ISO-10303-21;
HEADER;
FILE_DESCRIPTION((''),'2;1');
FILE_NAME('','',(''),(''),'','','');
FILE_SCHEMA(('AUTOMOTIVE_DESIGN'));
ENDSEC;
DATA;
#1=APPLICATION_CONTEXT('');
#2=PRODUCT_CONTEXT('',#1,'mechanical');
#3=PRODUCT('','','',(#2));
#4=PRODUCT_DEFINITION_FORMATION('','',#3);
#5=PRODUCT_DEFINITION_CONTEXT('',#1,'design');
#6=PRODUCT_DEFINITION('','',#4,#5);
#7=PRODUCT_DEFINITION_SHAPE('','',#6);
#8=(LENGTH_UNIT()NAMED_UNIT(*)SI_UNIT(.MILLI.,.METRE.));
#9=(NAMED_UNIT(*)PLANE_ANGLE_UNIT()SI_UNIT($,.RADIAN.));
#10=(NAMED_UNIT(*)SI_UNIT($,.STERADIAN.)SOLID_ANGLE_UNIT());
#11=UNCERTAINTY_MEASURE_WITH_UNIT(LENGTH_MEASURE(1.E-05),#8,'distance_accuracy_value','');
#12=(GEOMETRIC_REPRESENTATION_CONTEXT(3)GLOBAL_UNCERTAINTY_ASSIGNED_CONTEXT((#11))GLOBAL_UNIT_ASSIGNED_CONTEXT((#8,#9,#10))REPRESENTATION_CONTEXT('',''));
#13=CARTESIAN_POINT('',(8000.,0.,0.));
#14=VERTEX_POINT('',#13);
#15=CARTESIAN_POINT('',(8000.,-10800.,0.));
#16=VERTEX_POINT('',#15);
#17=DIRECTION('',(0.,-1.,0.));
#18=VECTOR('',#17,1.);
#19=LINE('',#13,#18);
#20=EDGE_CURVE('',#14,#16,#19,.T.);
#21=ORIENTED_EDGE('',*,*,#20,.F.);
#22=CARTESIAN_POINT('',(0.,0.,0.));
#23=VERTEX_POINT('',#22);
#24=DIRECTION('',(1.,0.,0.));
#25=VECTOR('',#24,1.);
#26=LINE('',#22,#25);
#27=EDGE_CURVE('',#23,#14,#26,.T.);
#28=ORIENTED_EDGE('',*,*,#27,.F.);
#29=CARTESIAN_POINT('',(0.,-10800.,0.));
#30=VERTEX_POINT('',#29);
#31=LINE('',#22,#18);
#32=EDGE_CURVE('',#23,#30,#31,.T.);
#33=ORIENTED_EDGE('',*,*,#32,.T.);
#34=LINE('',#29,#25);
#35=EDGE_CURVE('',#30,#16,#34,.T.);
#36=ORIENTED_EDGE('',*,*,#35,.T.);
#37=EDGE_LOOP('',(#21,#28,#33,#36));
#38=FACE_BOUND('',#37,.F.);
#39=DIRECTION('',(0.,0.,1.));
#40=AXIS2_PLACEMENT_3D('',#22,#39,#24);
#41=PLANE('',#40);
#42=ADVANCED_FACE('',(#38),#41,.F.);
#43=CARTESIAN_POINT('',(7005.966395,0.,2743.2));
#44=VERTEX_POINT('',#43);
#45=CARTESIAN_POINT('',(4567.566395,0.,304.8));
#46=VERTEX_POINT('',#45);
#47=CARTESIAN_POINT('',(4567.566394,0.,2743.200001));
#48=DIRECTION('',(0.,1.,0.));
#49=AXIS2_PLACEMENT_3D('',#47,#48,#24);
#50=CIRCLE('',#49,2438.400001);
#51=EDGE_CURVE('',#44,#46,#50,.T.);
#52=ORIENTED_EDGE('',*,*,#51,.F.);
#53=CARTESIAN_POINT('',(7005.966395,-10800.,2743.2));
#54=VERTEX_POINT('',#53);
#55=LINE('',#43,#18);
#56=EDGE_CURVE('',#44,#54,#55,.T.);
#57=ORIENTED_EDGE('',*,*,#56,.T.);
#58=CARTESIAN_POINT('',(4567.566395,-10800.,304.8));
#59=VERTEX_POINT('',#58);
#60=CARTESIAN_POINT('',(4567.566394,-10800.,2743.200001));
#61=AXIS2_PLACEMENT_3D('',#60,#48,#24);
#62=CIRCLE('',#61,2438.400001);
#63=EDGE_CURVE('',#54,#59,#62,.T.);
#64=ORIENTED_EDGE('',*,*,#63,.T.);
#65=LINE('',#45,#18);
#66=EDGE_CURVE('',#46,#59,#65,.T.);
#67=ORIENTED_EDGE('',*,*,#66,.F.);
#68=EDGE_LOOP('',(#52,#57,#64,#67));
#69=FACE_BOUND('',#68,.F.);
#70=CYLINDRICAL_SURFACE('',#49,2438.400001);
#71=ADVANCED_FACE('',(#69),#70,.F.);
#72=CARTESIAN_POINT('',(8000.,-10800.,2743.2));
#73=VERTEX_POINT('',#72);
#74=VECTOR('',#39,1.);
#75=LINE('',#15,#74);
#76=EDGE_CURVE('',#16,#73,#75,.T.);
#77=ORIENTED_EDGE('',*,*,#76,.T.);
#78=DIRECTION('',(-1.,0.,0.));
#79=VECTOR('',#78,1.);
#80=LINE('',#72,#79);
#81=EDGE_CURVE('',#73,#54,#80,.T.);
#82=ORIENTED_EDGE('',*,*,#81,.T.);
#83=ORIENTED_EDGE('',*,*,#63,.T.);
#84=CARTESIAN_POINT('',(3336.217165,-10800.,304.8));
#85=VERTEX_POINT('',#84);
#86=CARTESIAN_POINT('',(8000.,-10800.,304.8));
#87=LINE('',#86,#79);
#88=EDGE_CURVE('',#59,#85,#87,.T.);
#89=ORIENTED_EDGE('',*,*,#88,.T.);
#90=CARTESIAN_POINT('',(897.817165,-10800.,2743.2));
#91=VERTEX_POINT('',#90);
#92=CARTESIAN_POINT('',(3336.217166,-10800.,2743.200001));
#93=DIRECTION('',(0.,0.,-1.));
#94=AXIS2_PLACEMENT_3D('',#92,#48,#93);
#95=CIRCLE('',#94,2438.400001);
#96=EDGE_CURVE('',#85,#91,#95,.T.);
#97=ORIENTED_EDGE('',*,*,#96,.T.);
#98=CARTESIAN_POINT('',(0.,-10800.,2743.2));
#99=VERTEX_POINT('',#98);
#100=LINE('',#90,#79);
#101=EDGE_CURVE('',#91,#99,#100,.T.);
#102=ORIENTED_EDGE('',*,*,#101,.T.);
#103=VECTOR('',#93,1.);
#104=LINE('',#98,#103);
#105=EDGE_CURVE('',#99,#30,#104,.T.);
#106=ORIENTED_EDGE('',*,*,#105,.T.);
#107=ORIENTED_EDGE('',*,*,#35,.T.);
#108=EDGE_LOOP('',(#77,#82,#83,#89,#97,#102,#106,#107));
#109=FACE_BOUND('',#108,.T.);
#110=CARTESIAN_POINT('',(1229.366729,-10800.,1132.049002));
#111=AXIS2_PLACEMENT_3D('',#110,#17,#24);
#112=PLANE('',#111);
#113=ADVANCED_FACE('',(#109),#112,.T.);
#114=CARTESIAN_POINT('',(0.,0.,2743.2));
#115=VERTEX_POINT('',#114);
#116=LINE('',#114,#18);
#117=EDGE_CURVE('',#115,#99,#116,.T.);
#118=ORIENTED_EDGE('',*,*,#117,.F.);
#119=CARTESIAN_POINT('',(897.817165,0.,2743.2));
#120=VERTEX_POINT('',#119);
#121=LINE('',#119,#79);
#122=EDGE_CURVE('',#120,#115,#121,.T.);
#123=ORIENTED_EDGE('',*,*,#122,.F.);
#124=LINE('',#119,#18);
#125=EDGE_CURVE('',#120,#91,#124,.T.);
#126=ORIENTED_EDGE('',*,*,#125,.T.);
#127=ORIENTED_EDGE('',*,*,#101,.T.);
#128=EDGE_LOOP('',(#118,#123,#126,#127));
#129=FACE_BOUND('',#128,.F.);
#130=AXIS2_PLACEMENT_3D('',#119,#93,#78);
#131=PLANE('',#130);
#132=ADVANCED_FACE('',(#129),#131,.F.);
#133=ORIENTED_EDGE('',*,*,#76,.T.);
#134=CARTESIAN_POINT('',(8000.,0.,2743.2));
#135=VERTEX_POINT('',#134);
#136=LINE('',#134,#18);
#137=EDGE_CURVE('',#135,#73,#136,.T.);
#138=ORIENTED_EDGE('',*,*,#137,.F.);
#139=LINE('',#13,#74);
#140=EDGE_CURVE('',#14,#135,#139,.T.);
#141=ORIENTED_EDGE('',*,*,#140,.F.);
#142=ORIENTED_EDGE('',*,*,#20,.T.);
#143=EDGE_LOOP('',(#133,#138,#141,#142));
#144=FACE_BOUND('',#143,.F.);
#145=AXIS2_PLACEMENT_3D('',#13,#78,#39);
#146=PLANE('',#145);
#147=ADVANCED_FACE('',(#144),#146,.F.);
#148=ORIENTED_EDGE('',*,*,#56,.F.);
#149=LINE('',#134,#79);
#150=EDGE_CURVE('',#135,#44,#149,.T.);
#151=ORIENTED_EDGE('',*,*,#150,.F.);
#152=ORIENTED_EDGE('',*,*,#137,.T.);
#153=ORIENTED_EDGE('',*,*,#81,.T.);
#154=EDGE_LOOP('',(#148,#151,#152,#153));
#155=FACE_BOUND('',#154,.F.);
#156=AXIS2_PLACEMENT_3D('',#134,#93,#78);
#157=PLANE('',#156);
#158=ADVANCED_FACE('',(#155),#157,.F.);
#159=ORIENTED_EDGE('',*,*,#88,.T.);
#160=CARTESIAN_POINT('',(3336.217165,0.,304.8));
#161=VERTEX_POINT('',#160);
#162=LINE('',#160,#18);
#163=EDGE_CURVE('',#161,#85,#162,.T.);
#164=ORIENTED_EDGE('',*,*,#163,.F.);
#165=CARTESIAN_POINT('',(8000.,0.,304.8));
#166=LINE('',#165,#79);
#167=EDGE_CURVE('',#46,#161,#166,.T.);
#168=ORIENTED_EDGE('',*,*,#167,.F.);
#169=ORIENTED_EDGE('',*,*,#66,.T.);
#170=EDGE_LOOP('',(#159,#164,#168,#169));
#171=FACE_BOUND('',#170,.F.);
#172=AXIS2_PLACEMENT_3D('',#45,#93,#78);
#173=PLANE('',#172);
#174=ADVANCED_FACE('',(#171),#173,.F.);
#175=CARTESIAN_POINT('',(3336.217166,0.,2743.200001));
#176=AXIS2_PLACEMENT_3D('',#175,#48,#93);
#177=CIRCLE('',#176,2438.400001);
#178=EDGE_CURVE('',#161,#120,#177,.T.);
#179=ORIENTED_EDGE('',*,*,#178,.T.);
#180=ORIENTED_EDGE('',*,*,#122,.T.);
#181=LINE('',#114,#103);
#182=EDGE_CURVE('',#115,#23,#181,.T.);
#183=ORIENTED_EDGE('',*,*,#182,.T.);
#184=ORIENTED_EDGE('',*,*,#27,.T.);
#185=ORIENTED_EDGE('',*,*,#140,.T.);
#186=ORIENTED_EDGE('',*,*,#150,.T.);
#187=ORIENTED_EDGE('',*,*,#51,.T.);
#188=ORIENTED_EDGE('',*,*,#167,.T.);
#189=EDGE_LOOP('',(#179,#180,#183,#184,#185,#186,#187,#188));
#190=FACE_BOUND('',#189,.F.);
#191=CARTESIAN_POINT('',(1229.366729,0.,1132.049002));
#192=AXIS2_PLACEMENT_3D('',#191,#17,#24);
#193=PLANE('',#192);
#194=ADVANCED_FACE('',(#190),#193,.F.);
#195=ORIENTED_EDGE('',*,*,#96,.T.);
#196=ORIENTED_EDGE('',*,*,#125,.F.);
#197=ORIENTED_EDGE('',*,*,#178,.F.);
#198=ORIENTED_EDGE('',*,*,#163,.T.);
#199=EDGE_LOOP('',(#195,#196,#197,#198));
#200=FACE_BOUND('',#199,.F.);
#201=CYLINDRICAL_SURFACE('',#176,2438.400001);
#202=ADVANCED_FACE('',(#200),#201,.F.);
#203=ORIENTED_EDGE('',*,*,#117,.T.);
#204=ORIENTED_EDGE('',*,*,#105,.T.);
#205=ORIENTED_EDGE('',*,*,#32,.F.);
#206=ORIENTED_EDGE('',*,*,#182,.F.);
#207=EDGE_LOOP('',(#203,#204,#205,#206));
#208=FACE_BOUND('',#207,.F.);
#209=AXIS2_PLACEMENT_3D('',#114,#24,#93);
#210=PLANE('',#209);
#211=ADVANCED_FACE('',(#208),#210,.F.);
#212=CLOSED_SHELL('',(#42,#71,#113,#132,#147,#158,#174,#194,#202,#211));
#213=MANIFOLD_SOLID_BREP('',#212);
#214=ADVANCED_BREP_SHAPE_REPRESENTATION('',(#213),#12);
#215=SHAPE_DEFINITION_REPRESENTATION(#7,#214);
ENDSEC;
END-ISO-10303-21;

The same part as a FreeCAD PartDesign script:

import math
import FreeCAD as App
import Part
import Sketcher
from FreeCAD import Vector

doc = App.newDocument("Part")
params = doc.addObject("Spreadsheet::Sheet", "Params")
for row, (alias, value) in enumerate([
    ("sketch1_radius", "2438.400001 mm"),
    ("sketch1_width", "8000 mm"),
    ("sketch1_height", "2743.2 mm"),
    ("pad1_length", "10800 mm"),
], start=1):
    params.set(f"A{row}", alias)
    params.set(f"B{row}", "=" + value)
    params.setAlias(f"B{row}", alias)

body = doc.addObject("PartDesign::Body", "Body")

# Sketch on XZ plane
sketch1 = body.newObject("Sketcher::SketchObject", "Sketch")
sketch1.AttachmentSupport = (doc.getObject("XZ_Plane"), [""])
sketch1.MapMode = "FlatFace"
sketch1.addGeometry([
    Part.LineSegment(Vector(0, 2743.2, 0), Vector(0, 0, 0)),  # 0
    Part.LineSegment(Vector(0, 0, 0), Vector(8000, 0, 0)),  # 1
    Part.LineSegment(Vector(8000, 0, 0), Vector(8000, 2743.2, 0)),  # 2
    Part.LineSegment(Vector(8000, 2743.2, 0), Vector(7005.966395, 2743.2, 0)),  # 3
    Part.ArcOfCircle(Part.Circle(Vector(4567.566394, 2743.200001, 0), Vector(0, 0, 1), 2438.400001), math.radians(-90), math.radians(0)),  # 4
    Part.LineSegment(Vector(4567.566395, 304.8, 0), Vector(3336.217165, 304.8, 0)),  # 5
    Part.ArcOfCircle(Part.Circle(Vector(3336.217166, 2743.200001, 0), Vector(0, 0, 1), 2438.400001), math.radians(-180), math.radians(-90)),  # 6
    Part.LineSegment(Vector(897.817165, 2743.2, 0), Vector(0, 2743.2, 0)),  # 7
], False)
sketch1.addConstraint([
    Sketcher.Constraint("Coincident", 0, 2, 1, 1),
    Sketcher.Constraint("Coincident", 1, 2, 2, 1),
    Sketcher.Constraint("Coincident", 2, 2, 3, 1),
    Sketcher.Constraint("Coincident", 3, 2, 4, 2),
    Sketcher.Constraint("Coincident", 4, 1, 5, 1),
    Sketcher.Constraint("Coincident", 5, 2, 6, 2),
    Sketcher.Constraint("Coincident", 6, 1, 7, 1),
    Sketcher.Constraint("Coincident", 7, 2, 0, 1),
    Sketcher.Constraint("Vertical", 0),
    Sketcher.Constraint("Horizontal", 1),
    Sketcher.Constraint("Vertical", 2),
    Sketcher.Constraint("Horizontal", 3),
    Sketcher.Constraint("Horizontal", 5),
    Sketcher.Constraint("Horizontal", 7),
    Sketcher.Constraint("Coincident", 0, 2, -1, 1),
    Sketcher.Constraint("Equal", 4, 6),
    Sketcher.Constraint("Horizontal", 6, 3, 2, 2),
    Sketcher.Constraint("Vertical", 6, 3, 5, 2),
    Sketcher.Constraint("Equal", 0, 2),
    Sketcher.Constraint("Radius", 4, 2438.400001),
    Sketcher.Constraint("DistanceX", 1, 1, 1, 2, 8000.0),
    Sketcher.Constraint("DistanceY", 0, 2, 0, 1, 2743.2),
    Sketcher.Constraint("DistanceX", 5, 2, 5, 1, 1231.34923),
    Sketcher.Constraint("DistanceX", 3, 2, 3, 1, 994.033605),
    Sketcher.Constraint("DistanceX", 7, 2, 7, 1, 897.817165),
])
sketch1.setExpression("Constraints[19]", "Params.sketch1_radius")
sketch1.setExpression("Constraints[20]", "Params.sketch1_width")
sketch1.setExpression("Constraints[21]", "Params.sketch1_height")
pad1 = body.newObject("PartDesign::Pad", "Pad")
pad1.Profile = sketch1
pad1.setExpression("Length", "Params.pad1_length")

doc.recompute()
